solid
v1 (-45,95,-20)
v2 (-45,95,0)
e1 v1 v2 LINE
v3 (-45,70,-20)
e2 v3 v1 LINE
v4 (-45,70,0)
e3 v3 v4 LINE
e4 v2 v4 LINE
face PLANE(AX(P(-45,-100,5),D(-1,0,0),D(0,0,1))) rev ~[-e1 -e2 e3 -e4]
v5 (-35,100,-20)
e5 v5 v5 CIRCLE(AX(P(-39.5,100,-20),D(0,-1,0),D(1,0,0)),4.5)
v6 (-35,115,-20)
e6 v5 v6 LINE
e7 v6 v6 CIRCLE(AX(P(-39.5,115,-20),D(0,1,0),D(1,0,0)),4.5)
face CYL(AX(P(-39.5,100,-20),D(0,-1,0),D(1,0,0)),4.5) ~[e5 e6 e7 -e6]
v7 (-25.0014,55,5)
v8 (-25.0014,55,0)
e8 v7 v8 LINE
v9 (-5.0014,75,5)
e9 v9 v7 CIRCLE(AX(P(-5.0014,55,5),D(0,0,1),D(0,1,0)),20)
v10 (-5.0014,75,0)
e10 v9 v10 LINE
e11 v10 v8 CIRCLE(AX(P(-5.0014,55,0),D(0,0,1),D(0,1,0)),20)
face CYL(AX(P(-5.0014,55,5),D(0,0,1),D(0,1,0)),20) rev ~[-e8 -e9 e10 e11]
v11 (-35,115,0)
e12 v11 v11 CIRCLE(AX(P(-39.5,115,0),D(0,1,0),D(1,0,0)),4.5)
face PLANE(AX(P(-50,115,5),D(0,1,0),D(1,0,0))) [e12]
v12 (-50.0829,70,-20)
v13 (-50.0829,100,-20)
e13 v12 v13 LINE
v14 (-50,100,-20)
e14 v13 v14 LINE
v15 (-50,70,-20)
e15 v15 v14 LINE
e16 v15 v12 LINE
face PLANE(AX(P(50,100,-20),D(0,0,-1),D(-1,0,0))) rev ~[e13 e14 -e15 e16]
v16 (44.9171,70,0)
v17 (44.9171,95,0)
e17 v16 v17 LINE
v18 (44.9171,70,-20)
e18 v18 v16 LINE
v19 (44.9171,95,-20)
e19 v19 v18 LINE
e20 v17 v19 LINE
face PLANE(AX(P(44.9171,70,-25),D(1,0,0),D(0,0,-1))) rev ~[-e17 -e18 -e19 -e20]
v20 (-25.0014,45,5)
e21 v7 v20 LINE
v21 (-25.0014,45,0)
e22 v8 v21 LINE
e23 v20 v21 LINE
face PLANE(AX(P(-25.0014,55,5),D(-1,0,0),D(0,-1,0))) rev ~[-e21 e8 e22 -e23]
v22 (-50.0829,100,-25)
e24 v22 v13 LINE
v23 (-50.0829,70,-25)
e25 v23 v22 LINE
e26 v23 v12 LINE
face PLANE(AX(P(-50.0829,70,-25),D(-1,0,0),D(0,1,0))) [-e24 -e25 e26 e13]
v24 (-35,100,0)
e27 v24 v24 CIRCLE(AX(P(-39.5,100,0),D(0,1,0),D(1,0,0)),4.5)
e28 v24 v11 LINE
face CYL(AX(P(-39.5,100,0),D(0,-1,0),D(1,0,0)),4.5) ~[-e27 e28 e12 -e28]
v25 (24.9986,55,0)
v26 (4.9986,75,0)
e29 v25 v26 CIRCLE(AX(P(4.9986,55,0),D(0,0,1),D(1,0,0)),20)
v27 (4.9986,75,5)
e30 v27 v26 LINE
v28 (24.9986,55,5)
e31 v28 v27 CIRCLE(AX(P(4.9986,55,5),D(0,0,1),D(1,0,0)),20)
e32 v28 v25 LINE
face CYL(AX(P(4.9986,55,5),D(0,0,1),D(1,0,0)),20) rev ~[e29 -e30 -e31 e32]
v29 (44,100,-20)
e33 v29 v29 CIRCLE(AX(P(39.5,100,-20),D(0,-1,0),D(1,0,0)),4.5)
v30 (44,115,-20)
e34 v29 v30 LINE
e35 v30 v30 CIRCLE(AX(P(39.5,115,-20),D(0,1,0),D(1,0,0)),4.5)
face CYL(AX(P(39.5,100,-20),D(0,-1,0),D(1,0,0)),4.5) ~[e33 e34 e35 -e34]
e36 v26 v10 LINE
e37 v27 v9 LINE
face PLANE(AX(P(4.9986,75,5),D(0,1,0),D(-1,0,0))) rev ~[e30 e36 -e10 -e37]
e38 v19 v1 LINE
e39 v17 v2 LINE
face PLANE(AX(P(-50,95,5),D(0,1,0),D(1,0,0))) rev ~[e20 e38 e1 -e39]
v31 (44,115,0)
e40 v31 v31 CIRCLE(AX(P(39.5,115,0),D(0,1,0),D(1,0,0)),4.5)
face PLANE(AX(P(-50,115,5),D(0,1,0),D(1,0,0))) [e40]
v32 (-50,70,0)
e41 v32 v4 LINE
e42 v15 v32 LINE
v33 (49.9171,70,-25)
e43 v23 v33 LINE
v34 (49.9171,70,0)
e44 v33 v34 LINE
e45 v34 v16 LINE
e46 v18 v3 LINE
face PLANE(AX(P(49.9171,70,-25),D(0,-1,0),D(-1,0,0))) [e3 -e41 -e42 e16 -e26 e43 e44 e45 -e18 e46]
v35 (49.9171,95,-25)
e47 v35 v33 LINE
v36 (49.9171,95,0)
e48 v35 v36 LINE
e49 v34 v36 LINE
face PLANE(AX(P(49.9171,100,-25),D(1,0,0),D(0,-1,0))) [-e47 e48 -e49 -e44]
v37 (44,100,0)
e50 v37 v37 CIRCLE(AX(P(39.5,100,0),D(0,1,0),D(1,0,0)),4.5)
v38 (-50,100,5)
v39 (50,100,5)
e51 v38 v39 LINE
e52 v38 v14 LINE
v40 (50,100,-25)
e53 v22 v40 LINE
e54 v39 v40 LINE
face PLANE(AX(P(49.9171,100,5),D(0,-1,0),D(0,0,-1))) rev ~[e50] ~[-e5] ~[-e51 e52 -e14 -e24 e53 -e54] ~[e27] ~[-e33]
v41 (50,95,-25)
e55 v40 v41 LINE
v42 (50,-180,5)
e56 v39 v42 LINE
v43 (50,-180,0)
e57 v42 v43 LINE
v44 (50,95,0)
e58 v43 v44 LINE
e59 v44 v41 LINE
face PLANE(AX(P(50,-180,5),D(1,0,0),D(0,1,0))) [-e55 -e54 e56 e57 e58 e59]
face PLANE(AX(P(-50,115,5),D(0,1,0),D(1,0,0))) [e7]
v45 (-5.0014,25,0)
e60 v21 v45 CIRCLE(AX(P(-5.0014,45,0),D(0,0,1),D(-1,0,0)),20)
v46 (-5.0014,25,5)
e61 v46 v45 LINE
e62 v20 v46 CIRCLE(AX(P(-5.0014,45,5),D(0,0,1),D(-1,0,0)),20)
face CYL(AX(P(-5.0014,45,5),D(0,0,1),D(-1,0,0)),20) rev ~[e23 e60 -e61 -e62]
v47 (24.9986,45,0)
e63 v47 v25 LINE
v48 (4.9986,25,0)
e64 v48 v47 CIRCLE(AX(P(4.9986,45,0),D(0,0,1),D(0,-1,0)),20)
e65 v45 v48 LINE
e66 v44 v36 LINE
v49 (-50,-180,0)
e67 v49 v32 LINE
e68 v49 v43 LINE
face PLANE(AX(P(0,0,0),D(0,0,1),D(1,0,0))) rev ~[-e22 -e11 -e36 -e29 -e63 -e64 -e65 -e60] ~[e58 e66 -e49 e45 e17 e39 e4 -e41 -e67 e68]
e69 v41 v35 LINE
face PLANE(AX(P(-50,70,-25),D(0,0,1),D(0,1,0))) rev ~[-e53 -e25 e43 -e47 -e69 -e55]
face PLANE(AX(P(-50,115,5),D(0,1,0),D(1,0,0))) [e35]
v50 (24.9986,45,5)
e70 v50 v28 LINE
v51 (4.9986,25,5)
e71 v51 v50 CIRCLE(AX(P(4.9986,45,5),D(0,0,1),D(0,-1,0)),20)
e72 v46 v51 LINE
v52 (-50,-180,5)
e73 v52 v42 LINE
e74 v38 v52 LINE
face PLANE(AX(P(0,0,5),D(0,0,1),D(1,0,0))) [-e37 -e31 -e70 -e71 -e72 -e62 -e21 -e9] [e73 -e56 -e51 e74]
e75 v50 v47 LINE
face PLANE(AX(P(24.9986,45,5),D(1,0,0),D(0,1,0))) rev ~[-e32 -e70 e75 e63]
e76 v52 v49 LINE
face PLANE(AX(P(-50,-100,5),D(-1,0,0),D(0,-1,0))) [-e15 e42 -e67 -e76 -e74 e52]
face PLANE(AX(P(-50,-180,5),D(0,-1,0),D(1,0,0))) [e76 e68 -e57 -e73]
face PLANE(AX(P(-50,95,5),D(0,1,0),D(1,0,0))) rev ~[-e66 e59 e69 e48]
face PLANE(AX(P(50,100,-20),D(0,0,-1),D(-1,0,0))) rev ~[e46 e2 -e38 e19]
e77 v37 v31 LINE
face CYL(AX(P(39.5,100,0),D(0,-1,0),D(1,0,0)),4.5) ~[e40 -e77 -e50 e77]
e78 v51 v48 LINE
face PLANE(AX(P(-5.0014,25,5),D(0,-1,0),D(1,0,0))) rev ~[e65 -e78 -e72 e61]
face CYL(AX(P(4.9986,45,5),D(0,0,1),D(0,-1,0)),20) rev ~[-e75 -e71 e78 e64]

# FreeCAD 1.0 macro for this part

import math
import FreeCAD as App
import Part
import Sketcher
from FreeCAD import Vector


def add_polygon(sketch, points):
    """Adds a closed chain of lines whose ends are joined by coincident constraints."""
    first, n = sketch.GeometryCount, len(points)
    for a, b in zip(points, points[1:] + points[:1]):
        sketch.addGeometry(Part.LineSegment(App.Vector(*a, 0), App.Vector(*b, 0)), False)
    for i in range(n):
        sketch.addConstraint(Sketcher.Constraint("Coincident", first + i, 2, first + (i + 1) % n, 1))

doc = App.newDocument("Part")
body = doc.addObject("PartDesign::Body", "Body")

# Sketch on XY plane
sketch1 = body.newObject("Sketcher::SketchObject", "Sketch")
sketch1.AttachmentSupport = (doc.getObject("XY_Plane"), [""])
sketch1.MapMode = "FlatFace"
add_polygon(sketch1, [(-50, 100), (-50, -100), (50, -100), (50, 100)])  # lines 0-3
sketch1.addConstraint([
    Sketcher.Constraint("Vertical", 0),
    Sketcher.Constraint("Horizontal", 1),
    Sketcher.Constraint("Vertical", 2),
    Sketcher.Constraint("Horizontal", 3),
    Sketcher.Constraint("Symmetric", 0, 2, 2, 2, -1, 1),
    Sketcher.Constraint("DistanceX", 1, 1, 1, 2, 100.0),
    Sketcher.Constraint("DistanceY", 0, 2, 0, 1, 200.0),
])
pad1 = body.newObject("PartDesign::Pad", "Pad")
pad1.Profile = sketch1
pad1.Length = 5

# Sketch on XY plane
sketch2 = body.newObject("Sketcher::SketchObject", "Sketch001")
sketch2.AttachmentSupport = (doc.getObject("XY_Plane"), [""])
sketch2.MapMode = "FlatFace"
sketch2.AttachmentOffset = App.Placement(Vector(0, 0, 5), App.Rotation())
sketch2.addGeometry([
    Part.ArcOfCircle(Part.Circle(Vector(5, 55, 0), Vector(0, 0, 1), 20), math.radians(0), math.radians(90)),  # 0
    Part.LineSegment(Vector(5, 75, 0), Vector(-5, 75, 0)),  # 1
    Part.ArcOfCircle(Part.Circle(Vector(-5, 55, 0), Vector(0, 0, 1), 20), math.radians(90), math.radians(180)),  # 2
    Part.LineSegment(Vector(-25, 55, 0), Vector(-25, 45, 0)),  # 3
    Part.ArcOfCircle(Part.Circle(Vector(-5, 45, 0), Vector(0, 0, 1), 20), math.radians(180), math.radians(270)),  # 4
    Part.LineSegment(Vector(-5, 25, 0), Vector(5, 25, 0)),  # 5
    Part.ArcOfCircle(Part.Circle(Vector(5, 45, 0), Vector(0, 0, 1), 20), math.radians(-90), math.radians(0)),  # 6
    Part.LineSegment(Vector(25, 45, 0), Vector(25, 55, 0)),  # 7
], False)
sketch2.addConstraint([
    Sketcher.Constraint("Tangent", 0, 2, 1, 1),
    Sketcher.Constraint("Tangent", 1, 2, 2, 1),
    Sketcher.Constraint("Tangent", 2, 2, 3, 1),
    Sketcher.Constraint("Tangent", 3, 2, 4, 1),
    Sketcher.Constraint("Tangent", 4, 2, 5, 1),
    Sketcher.Constraint("Tangent", 5, 2, 6, 1),
    Sketcher.Constraint("Tangent", 6, 2, 7, 1),
    Sketcher.Constraint("Tangent", 7, 2, 0, 1),
    Sketcher.Constraint("Horizontal", 1),
    Sketcher.Constraint("Vertical", 3),
    Sketcher.Constraint("Horizontal", 5),
    Sketcher.Constraint("Vertical", 7),
    Sketcher.Constraint("Equal", 0, 2),
    Sketcher.Constraint("Equal", 2, 4),
    Sketcher.Constraint("Equal", 4, 6),
    Sketcher.Constraint("Equal", 5, 3),
    Sketcher.Constraint("Radius", 0, 20.0),
    Sketcher.Constraint("DistanceX", 1, 2, 1, 1, 10.0),
    Sketcher.Constraint("DistanceY", -1, 1, 0, 3, 55.0),
    Sketcher.Constraint("DistanceX", -1, 1, 0, 3, 4.9986),
])
pocket1 = body.newObject("PartDesign::Pocket", "Pocket")
pocket1.Profile = sketch2
pocket1.Length = 5

# Sketch on XZ plane
sketch3 = body.newObject("Sketcher::SketchObject", "Sketch002")
sketch3.AttachmentSupport = (doc.getObject("XZ_Plane"), [""])
sketch3.MapMode = "FlatFace"
sketch3.AttachmentOffset = App.Placement(Vector(0, 0, -100), App.Rotation())
add_polygon(sketch3, [(-50, 5), (50, 5), (50, -25), (-50, -25)])  # lines 0-3
sketch3.addConstraint([
    Sketcher.Constraint("Horizontal", 0),
    Sketcher.Constraint("Vertical", 1),
    Sketcher.Constraint("Horizontal", 2),
    Sketcher.Constraint("Vertical", 3),
    Sketcher.Constraint("DistanceX", 0, 1, 0, 2, 100.0),
    Sketcher.Constraint("DistanceY", 1, 2, 1, 1, 30.0),
    Sketcher.Constraint("DistanceX", -1, 1, 0, 2, 50.0),
    Sketcher.Constraint("DistanceY", -1, 1, 0, 2, 5.0),
])
pad2 = body.newObject("PartDesign::Pad", "Pad001")
pad2.Profile = sketch3
pad2.Length = 5

# Sketch on XZ plane
sketch4 = body.newObject("Sketcher::SketchObject", "Sketch003")
sketch4.AttachmentSupport = (doc.getObject("XZ_Plane"), [""])
sketch4.MapMode = "FlatFace"
sketch4.AttachmentOffset = App.Placement(Vector(0, 0, -100), App.Rotation())
sketch4.addGeometry([
    Part.Circle(Vector(-39.5, 0, 0), Vector(0, 0, 1), 4.5),
    Part.Circle(Vector(39.5, 0, 0), Vector(0, 0, 1), 4.5),
    Part.Circle(Vector(-39.5, -20, 0), Vector(0, 0, 1), 4.5),
    Part.Circle(Vector(39.5, -20, 0), Vector(0, 0, 1), 4.5),
], False)
sketch4.addConstraint([
    Sketcher.Constraint("Equal", 0, 1),
    Sketcher.Constraint("Equal", 1, 2),
    Sketcher.Constraint("Equal", 2, 3),
    Sketcher.Constraint("Symmetric", 0, 3, 1, 3, -1, 1),
    Sketcher.Constraint("Symmetric", 2, 3, 3, 3, -2),
    Sketcher.Constraint("PointOnObject", 0, 3, -1),
    Sketcher.Constraint("Vertical", 0, 3, 2, 3),
    Sketcher.Constraint("Diameter", 0, 9.0),
    Sketcher.Constraint("DistanceY", 2, 3, -1, 1, 20.0),
    Sketcher.Constraint("DistanceX", 0, 3, 1, 3, 79.0),
])
pad3 = body.newObject("PartDesign::Pad", "Pad002")
pad3.Profile = sketch4
pad3.Length = 15
pad3.Reversed = True

# Sketch on XY plane
sketch5 = body.newObject("Sketcher::SketchObject", "Sketch004")
sketch5.AttachmentSupport = (doc.getObject("XY_Plane"), [""])
sketch5.MapMode = "FlatFace"
sketch5.AttachmentOffset = App.Placement(Vector(0, 0, -25), App.Rotation())
add_polygon(sketch5, [(-50, 70), (-50, 100), (50, 100), (50, 70)])  # lines 0-3
sketch5.addConstraint([
    Sketcher.Constraint("Vertical", 0),
    Sketcher.Constraint("Horizontal", 1),
    Sketcher.Constraint("Vertical", 2),
    Sketcher.Constraint("Horizontal", 3),
    Sketcher.Constraint("DistanceX", 1, 1, 1, 2, 100.0),
    Sketcher.Constraint("DistanceY", 0, 1, 0, 2, 30.0),
    Sketcher.Constraint("DistanceY", -1, 1, 0, 2, 100.0),
    Sketcher.Constraint("DistanceX", 0, 2, -1, 1, 50.083),
])
pad4 = body.newObject("PartDesign::Pad", "Pad003")
pad4.Profile = sketch5
pad4.Length = 5

# Sketch on YZ plane
sketch6 = body.newObject("Sketcher::SketchObject", "Sketch005")
sketch6.AttachmentSupport = (doc.getObject("YZ_Plane"), [""])
sketch6.MapMode = "FlatFace"
sketch6.AttachmentOffset = App.Placement(Vector(0, 0, 49.9171), App.Rotation())
add_polygon(sketch6, [(70, 5), (70, -25), (100, -25), (100, 5)])  # lines 0-3
sketch6.addConstraint([
    Sketcher.Constraint("Vertical", 0),
    Sketcher.Constraint("Horizontal", 1),
    Sketcher.Constraint("Vertical", 2),
    Sketcher.Constraint("Horizontal", 3),
    Sketcher.Constraint("Equal", 3, 0),
    Sketcher.Constraint("DistanceX", 1, 1, 1, 2, 30.0),
    Sketcher.Constraint("DistanceX", -1, 1, 0, 2, 70.0),
    Sketcher.Constraint("DistanceY", 0, 2, -1, 1, 25.0),
])
pad5 = body.newObject("PartDesign::Pad", "Pad004")
pad5.Profile = sketch6
pad5.Length = 5
pad5.Reversed = True

# Sketch on YZ plane
sketch7 = body.newObject("Sketcher::SketchObject", "Sketch006")
sketch7.AttachmentSupport = (doc.getObject("YZ_Plane"), [""])
sketch7.MapMode = "FlatFace"
sketch7.AttachmentOffset = App.Placement(Vector(0, 0, -50), App.Rotation())
add_polygon(sketch7, [(100, 5), (100, -25), (70, -25), (70, 5)])  # lines 0-3
sketch7.addConstraint([
    Sketcher.Constraint("Vertical", 0),
    Sketcher.Constraint("Horizontal", 1),
    Sketcher.Constraint("Vertical", 2),
    Sketcher.Constraint("Horizontal", 3),
    Sketcher.Constraint("Equal", 3, 0),
    Sketcher.Constraint("DistanceX", 1, 2, 1, 1, 30.0),
    Sketcher.Constraint("DistanceX", -1, 1, 0, 2, 100.0),
    Sketcher.Constraint("DistanceY", 0, 2, -1, 1, 25.0),
])
pad6 = body.newObject("PartDesign::Pad", "Pad005")
pad6.Profile = sketch7
pad6.Length = 5

# Sketch on XY plane
sketch8 = body.newObject("Sketcher::SketchObject", "Sketch007")
sketch8.AttachmentSupport = (doc.getObject("XY_Plane"), [""])
sketch8.MapMode = "FlatFace"
sketch8.AttachmentOffset = App.Placement(Vector(0, 0, 5), App.Rotation())
add_polygon(sketch8, [(50, -180), (50, -100), (-50, -100), (-50, -180)])  # lines 0-3
sketch8.addConstraint([
    Sketcher.Constraint("Vertical", 0),
    Sketcher.Constraint("Horizontal", 1),
    Sketcher.Constraint("Vertical", 2),
    Sketcher.Constraint("Horizontal", 3),
    Sketcher.Constraint("DistanceX", 1, 2, 1, 1, 100.0),
    Sketcher.Constraint("DistanceY", 0, 1, 0, 2, 80.0),
    Sketcher.Constraint("DistanceY", 0, 2, -1, 1, 100.0),
    Sketcher.Constraint("DistanceX", -1, 1, 0, 2, 50.0),
])
pad7 = body.newObject("PartDesign::Pad", "Pad006")
pad7.Profile = sketch8
pad7.Length = 5
pad7.Reversed = True

doc.recompute()
